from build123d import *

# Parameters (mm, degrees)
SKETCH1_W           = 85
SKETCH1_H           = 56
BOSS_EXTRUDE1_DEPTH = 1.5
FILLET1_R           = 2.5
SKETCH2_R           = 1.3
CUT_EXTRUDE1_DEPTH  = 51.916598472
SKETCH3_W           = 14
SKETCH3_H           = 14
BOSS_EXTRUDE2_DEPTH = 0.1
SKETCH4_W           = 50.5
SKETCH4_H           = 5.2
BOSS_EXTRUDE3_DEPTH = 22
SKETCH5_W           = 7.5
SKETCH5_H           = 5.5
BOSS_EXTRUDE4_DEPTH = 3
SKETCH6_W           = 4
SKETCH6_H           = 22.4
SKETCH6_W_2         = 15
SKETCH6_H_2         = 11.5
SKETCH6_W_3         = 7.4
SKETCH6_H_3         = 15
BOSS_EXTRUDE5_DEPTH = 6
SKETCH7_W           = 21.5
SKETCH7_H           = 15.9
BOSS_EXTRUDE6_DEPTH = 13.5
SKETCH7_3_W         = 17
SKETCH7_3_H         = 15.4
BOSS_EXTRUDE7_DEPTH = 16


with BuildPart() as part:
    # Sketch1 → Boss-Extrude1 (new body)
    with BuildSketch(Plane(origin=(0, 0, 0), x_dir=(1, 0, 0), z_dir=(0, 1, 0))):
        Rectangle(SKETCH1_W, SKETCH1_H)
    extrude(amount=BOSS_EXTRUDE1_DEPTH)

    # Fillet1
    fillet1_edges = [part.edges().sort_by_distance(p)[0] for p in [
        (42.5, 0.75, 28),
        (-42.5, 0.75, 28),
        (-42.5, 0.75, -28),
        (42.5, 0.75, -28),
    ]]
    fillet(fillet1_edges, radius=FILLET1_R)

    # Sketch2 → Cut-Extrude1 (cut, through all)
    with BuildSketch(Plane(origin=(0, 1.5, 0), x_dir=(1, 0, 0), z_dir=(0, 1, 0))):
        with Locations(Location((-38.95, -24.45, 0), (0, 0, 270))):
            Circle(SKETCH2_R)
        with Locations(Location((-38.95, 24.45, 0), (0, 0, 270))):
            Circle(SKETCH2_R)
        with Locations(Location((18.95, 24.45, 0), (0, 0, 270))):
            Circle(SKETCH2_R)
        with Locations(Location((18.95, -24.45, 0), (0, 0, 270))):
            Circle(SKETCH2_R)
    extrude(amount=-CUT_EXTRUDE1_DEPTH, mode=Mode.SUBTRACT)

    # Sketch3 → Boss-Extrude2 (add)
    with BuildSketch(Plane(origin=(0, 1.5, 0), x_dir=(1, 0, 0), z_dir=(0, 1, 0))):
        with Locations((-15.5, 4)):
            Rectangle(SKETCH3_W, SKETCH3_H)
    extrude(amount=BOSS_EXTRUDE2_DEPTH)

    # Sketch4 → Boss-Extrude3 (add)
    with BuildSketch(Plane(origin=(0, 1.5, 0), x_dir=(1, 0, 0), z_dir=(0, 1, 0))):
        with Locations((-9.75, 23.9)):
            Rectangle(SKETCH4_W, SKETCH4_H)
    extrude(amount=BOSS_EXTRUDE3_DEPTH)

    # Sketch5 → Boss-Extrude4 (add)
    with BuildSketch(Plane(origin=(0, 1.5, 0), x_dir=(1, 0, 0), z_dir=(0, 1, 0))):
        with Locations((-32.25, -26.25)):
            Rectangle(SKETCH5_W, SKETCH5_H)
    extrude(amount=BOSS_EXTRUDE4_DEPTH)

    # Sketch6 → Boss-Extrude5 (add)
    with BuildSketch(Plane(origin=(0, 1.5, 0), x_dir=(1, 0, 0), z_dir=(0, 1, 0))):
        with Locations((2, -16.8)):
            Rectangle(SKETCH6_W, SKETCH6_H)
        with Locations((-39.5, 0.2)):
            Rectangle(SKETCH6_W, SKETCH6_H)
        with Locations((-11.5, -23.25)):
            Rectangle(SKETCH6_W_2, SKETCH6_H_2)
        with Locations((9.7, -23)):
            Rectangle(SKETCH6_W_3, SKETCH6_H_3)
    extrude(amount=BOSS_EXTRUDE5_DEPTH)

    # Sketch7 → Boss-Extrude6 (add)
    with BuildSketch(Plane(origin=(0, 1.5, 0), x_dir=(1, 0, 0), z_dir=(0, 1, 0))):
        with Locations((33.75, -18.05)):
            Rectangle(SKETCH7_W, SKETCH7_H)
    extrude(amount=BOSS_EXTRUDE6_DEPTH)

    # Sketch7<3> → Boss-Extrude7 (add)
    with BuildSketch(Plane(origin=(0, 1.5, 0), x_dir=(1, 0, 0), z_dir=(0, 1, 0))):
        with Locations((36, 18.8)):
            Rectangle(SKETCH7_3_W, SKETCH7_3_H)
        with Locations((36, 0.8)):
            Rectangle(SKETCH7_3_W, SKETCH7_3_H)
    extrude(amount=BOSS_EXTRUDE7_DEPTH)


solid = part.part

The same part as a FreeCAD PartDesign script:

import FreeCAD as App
import Part
import Sketcher
from FreeCAD import Vector
Q = App.Units.Quantity


def edges_at(feature, points):
    """Names of the edges that pass closest to the given points."""
    edges = feature.Shape.Edges
    near = lambda p: min(range(len(edges)), key=lambda i: edges[i].distToShape(Part.Vertex(*p))[0])
    return sorted({f"Edge{near(p) + 1}" for p in points})

doc = App.newDocument("Part")
params = doc.addObject("Spreadsheet::Sheet", "Params")
for row, (alias, value) in enumerate([
    ("sketch1_width", "85 mm"),
    ("sketch1_height", "56 mm"),
    ("pad1_length", "1.5 mm"),
    ("fillet_radius", "2.5 mm"),
    ("sketch2_diameter", "2.6 mm"),
    ("sketch3_width", "14 mm"),
    ("pad2_length", "0.1 mm"),
    ("sketch4_width", "50.5 mm"),
    ("sketch4_height", "5.2 mm"),
    ("pad3_length", "22 mm"),
    ("sketch5_width", "7.5 mm"),
    ("sketch5_height", "5.5 mm"),
    ("pad4_length", "3 mm"),
    ("sketch6_width", "4 mm"),
    ("sketch6_width2", "15 mm"),
    ("sketch6_width3", "7.4 mm"),
    ("sketch6_height", "22.4 mm"),
    ("sketch6_height2", "11.5 mm"),
    ("pad5_length", "6 mm"),
    ("sketch7_width", "21.5 mm"),
    ("sketch7_height", "15.9 mm"),
    ("pad6_length", "13.5 mm"),
    ("sketch8_width", "17 mm"),
    ("sketch8_height", "15.4 mm"),
    ("pad7_length", "16 mm"),
], start=1):
    params.set(f"A{row}", alias)
    params.set(f"B{row}", "=" + value)
    params.setAlias(f"B{row}", alias)

body = doc.addObject("PartDesign::Body", "Body")

# Sketch on XZ plane
sketch1 = doc.addObject("Sketcher::SketchObject", "Sketch")
body.addObject(sketch1)
sketch1.AttachmentSupport = (doc.XZ_Plane, [""])
sketch1.MapMode = "FlatFace"
sketch1.addGeometry([
    Part.LineSegment(Vector(-42.5, -28, 0), Vector(-42.5, 28, 0)),
    Part.LineSegment(Vector(-42.5, 28, 0), Vector(42.5, 28, 0)),
    Part.LineSegment(Vector(42.5, 28, 0), Vector(42.5, -28, 0)),
    Part.LineSegment(Vector(42.5, -28, 0), Vector(-42.5, -28, 0)),
], False)
sketch1.addConstraint([
    Sketcher.Constraint("Coincident", 0, 2, 1, 1),
    Sketcher.Constraint("Coincident", 1, 2, 2, 1),
    Sketcher.Constraint("Coincident", 2, 2, 3, 1),
    Sketcher.Constraint("Coincident", 3, 2, 0, 1),
    Sketcher.Constraint("Vertical", 0),
    Sketcher.Constraint("Horizontal", 1),
    Sketcher.Constraint("Vertical", 2),
    Sketcher.Constraint("Horizontal", 3),
    Sketcher.Constraint("Symmetric", 0, 2, 2, 2, -1, 1),
    Sketcher.Constraint("DistanceX", 1, 1, 1, 2, Q("85 mm")),
    Sketcher.Constraint("DistanceY", 0, 1, 0, 2, Q("56 mm")),
])
sketch1.setExpression("Constraints[9]", "Params.sketch1_width")
sketch1.setExpression("Constraints[10]", "Params.sketch1_height")
pad1 = doc.addObject("PartDesign::Pad", "Pad")
body.addObject(pad1)
pad1.Profile = sketch1
pad1.setExpression("Length", "Params.pad1_length")
pad1.Reversed = True
doc.recompute()

fillet = doc.addObject("PartDesign::Fillet", "Fillet")
body.addObject(fillet)
fillet.Base = (pad1, edges_at(pad1, [
    (42.5, 0.75, 28),
    (-42.5, 0.75, 28),
    (-42.5, 0.75, -28),
    (42.5, 0.75, -28),
]))
fillet.setExpression("Radius", "Params.fillet_radius")

# Sketch on XZ plane
sketch2 = doc.addObject("Sketcher::SketchObject", "Sketch001")
body.addObject(sketch2)
sketch2.AttachmentSupport = (doc.XZ_Plane, [""])
sketch2.MapMode = "FlatFace"
sketch2.AttachmentOffset = App.Placement(Vector(0, 0, -1.5), App.Rotation())
sketch2.addGeometry([
    Part.Circle(Vector(-38.95, 24.45, 0), Vector(0, 0, 1), 1.3),
    Part.Circle(Vector(-38.95, -24.45, 0), Vector(0, 0, 1), 1.3),
    Part.Circle(Vector(18.95, -24.45, 0), Vector(0, 0, 1), 1.3),
    Part.Circle(Vector(18.95, 24.45, 0), Vector(0, 0, 1), 1.3),
], False)
sketch2.addConstraint([
    Sketcher.Constraint("Equal", 0, 1),
    Sketcher.Constraint("Equal", 1, 2),
    Sketcher.Constraint("Equal", 2, 3),
    Sketcher.Constraint("Symmetric", 0, 3, 1, 3, -1),
    Sketcher.Constraint("Symmetric", 2, 3, 3, 3, -1),
    Sketcher.Constraint("Horizontal", 1, 3, 2, 3),
    Sketcher.Constraint("Diameter", 0, Q("2.6 mm")),
    Sketcher.Constraint("DistanceY", 1, 3, 0, 3, Q("48.9 mm")),
    Sketcher.Constraint("DistanceX", 1, 3, 2, 3, Q("57.9 mm")),
    Sketcher.Constraint("DistanceX", 0, 3, -1, 1, Q("38.95 mm")),
])
sketch2.setExpression("Constraints[6]", "Params.sketch2_diameter")
pocket1 = doc.addObject("PartDesign::Pocket", "Pocket")
body.addObject(pocket1)
pocket1.Profile = sketch2
pocket1.Type = "ThroughAll"
pocket1.Reversed = True

# Sketch on XZ plane
sketch3 = doc.addObject("Sketcher::SketchObject", "Sketch002")
body.addObject(sketch3)
sketch3.AttachmentSupport = (doc.XZ_Plane, [""])
sketch3.MapMode = "FlatFace"
sketch3.AttachmentOffset = App.Placement(Vector(0, 0, -1.5), App.Rotation())
sketch3.addGeometry([
    Part.LineSegment(Vector(-22.5, -11, 0), Vector(-22.5, 3, 0)),
    Part.LineSegment(Vector(-22.5, 3, 0), Vector(-8.5, 3, 0)),
    Part.LineSegment(Vector(-8.5, 3, 0), Vector(-8.5, -11, 0)),
    Part.LineSegment(Vector(-8.5, -11, 0), Vector(-22.5, -11, 0)),
], False)
sketch3.addConstraint([
    Sketcher.Constraint("Coincident", 0, 2, 1, 1),
    Sketcher.Constraint("Coincident", 1, 2, 2, 1),
    Sketcher.Constraint("Coincident", 2, 2, 3, 1),
    Sketcher.Constraint("Coincident", 3, 2, 0, 1),
    Sketcher.Constraint("Vertical", 0),
    Sketcher.Constraint("Horizontal", 1),
    Sketcher.Constraint("Vertical", 2),
    Sketcher.Constraint("Horizontal", 3),
    Sketcher.Constraint("Equal", 3, 0),
    Sketcher.Constraint("DistanceX", 1, 1, 1, 2, Q("14 mm")),
    Sketcher.Constraint("DistanceY", -1, 1, 0, 2, Q("3 mm")),
    Sketcher.Constraint("DistanceX", 0, 2, -1, 1, Q("22.5 mm")),
])
sketch3.setExpression("Constraints[9]", "Params.sketch3_width")
pad2 = doc.addObject("PartDesign::Pad", "Pad001")
body.addObject(pad2)
pad2.Profile = sketch3
pad2.setExpression("Length", "Params.pad2_length")
pad2.Reversed = True

# Sketch on XZ plane
sketch4 = doc.addObject("Sketcher::SketchObject", "Sketch003")
body.addObject(sketch4)
sketch4.AttachmentSupport = (doc.XZ_Plane, [""])
sketch4.MapMode = "FlatFace"
sketch4.AttachmentOffset = App.Placement(Vector(0, 0, -1.5), App.Rotation())
sketch4.addGeometry([
    Part.LineSegment(Vector(-35, -26.5, 0), Vector(-35, -21.3, 0)),
    Part.LineSegment(Vector(-35, -21.3, 0), Vector(15.5, -21.3, 0)),
    Part.LineSegment(Vector(15.5, -21.3, 0), Vector(15.5, -26.5, 0)),
    Part.LineSegment(Vector(15.5, -26.5, 0), Vector(-35, -26.5, 0)),
], False)
sketch4.addConstraint([
    Sketcher.Constraint("Coincident", 0, 2, 1, 1),
    Sketcher.Constraint("Coincident", 1, 2, 2, 1),
    Sketcher.Constraint("Coincident", 2, 2, 3, 1),
    Sketcher.Constraint("Coincident", 3, 2, 0, 1),
    Sketcher.Constraint("Vertical", 0),
    Sketcher.Constraint("Horizontal", 1),
    Sketcher.Constraint("Vertical", 2),
    Sketcher.Constraint("Horizontal", 3),
    Sketcher.Constraint("DistanceX", 1, 1, 1, 2, Q("50.5 mm")),
    Sketcher.Constraint("DistanceY", 0, 1, 0, 2, Q("5.2 mm")),
    Sketcher.Constraint("DistanceX", 0, 2, -1, 1, Q("35 mm")),
    Sketcher.Constraint("DistanceY", 0, 2, -1, 1, Q("21.3 mm")),
])
sketch4.setExpression("Constraints[8]", "Params.sketch4_width")
sketch4.setExpression("Constraints[9]", "Params.sketch4_height")
pad3 = doc.addObject("PartDesign::Pad", "Pad002")
body.addObject(pad3)
pad3.Profile = sketch4
pad3.setExpression("Length", "Params.pad3_length")
pad3.Reversed = True

# Sketch on XZ plane
sketch5 = doc.addObject("Sketcher::SketchObject", "Sketch004")
body.addObject(sketch5)
sketch5.AttachmentSupport = (doc.XZ_Plane, [""])
sketch5.MapMode = "FlatFace"
sketch5.AttachmentOffset = App.Placement(Vector(0, 0, -1.5), App.Rotation())
sketch5.addGeometry([
    Part.LineSegment(Vector(-36, 23.5, 0), Vector(-36, 29, 0)),
    Part.LineSegment(Vector(-36, 29, 0), Vector(-28.5, 29, 0)),
    Part.LineSegment(Vector(-28.5, 29, 0), Vector(-28.5, 23.5, 0)),
    Part.LineSegment(Vector(-28.5, 23.5, 0), Vector(-36, 23.5, 0)),
], False)
sketch5.addConstraint([
    Sketcher.Constraint("Coincident", 0, 2, 1, 1),
    Sketcher.Constraint("Coincident", 1, 2, 2, 1),
    Sketcher.Constraint("Coincident", 2, 2, 3, 1),
    Sketcher.Constraint("Coincident", 3, 2, 0, 1),
    Sketcher.Constraint("Vertical", 0),
    Sketcher.Constraint("Horizontal", 1),
    Sketcher.Constraint("Vertical", 2),
    Sketcher.Constraint("Horizontal", 3),
    Sketcher.Constraint("DistanceX", 1, 1, 1, 2, Q("7.5 mm")),
    Sketcher.Constraint("DistanceY", 0, 1, 0, 2, Q("5.5 mm")),
    Sketcher.Constraint("DistanceX", 0, 2, -1, 1, Q("36 mm")),
    Sketcher.Constraint("DistanceY", -1, 1, 0, 2, Q("29 mm")),
])
sketch5.setExpression("Constraints[8]", "Params.sketch5_width")
sketch5.setExpression("Constraints[9]", "Params.sketch5_height")
pad4 = doc.addObject("PartDesign::Pad", "Pad003")
body.addObject(pad4)
pad4.Profile = sketch5
pad4.setExpression("Length", "Params.pad4_length")
pad4.Reversed = True

# Sketch on XZ plane
sketch6 = doc.addObject("Sketcher::SketchObject", "Sketch005")
body.addObject(sketch6)
sketch6.AttachmentSupport = (doc.XZ_Plane, [""])
sketch6.MapMode = "FlatFace"
sketch6.AttachmentOffset = App.Placement(Vector(0, 0, -1.5), App.Rotation())
sketch6.addGeometry([
    Part.LineSegment(Vector(0, 5.6, 0), Vector(0, 28, 0)),  # 0
    Part.LineSegment(Vector(0, 28, 0), Vector(4, 28, 0)),  # 1
    Part.LineSegment(Vector(4, 28, 0), Vector(4, 5.6, 0)),  # 2
    Part.LineSegment(Vector(4, 5.6, 0), Vector(0, 5.6, 0)),  # 3
    Part.LineSegment(Vector(-41.5, -11.4, 0), Vector(-41.5, 11, 0)),  # 4
    Part.LineSegment(Vector(-41.5, 11, 0), Vector(-37.5, 11, 0)),  # 5
    Part.LineSegment(Vector(-37.5, 11, 0), Vector(-37.5, -11.4, 0)),  # 6
    Part.LineSegment(Vector(-37.5, -11.4, 0), Vector(-41.5, -11.4, 0)),  # 7
    Part.LineSegment(Vector(-19, 17.5, 0), Vector(-19, 29, 0)),  # 8
    Part.LineSegment(Vector(-19, 29, 0), Vector(-4, 29, 0)),  # 9
    Part.LineSegment(Vector(-4, 29, 0), Vector(-4, 17.5, 0)),  # 10
    Part.LineSegment(Vector(-4, 17.5, 0), Vector(-19, 17.5, 0)),  # 11
    Part.LineSegment(Vector(6, 15.5, 0), Vector(6, 30.5, 0)),  # 12
    Part.LineSegment(Vector(6, 30.5, 0), Vector(13.4, 30.5, 0)),  # 13
    Part.LineSegment(Vector(13.4, 30.5, 0), Vector(13.4, 15.5, 0)),  # 14
    Part.LineSegment(Vector(13.4, 15.5, 0), Vector(6, 15.5, 0)),  # 15
], False)
sketch6.addConstraint([
    Sketcher.Constraint("Coincident", 0, 2, 1, 1),
    Sketcher.Constraint("Coincident", 1, 2, 2, 1),
    Sketcher.Constraint("Coincident", 2, 2, 3, 1),
    Sketcher.Constraint("Coincident", 3, 2, 0, 1),
    Sketcher.Constraint("Coincident", 4, 2, 5, 1),
    Sketcher.Constraint("Coincident", 5, 2, 6, 1),
    Sketcher.Constraint("Coincident", 6, 2, 7, 1),
    Sketcher.Constraint("Coincident", 7, 2, 4, 1),
    Sketcher.Constraint("Coincident", 8, 2, 9, 1),
    Sketcher.Constraint("Coincident", 9, 2, 10, 1),
    Sketcher.Constraint("Coincident", 10, 2, 11, 1),
    Sketcher.Constraint("Coincident", 11, 2, 8, 1),
    Sketcher.Constraint("Coincident", 12, 2, 13, 1),
    Sketcher.Constraint("Coincident", 13, 2, 14, 1),
    Sketcher.Constraint("Coincident", 14, 2, 15, 1),
    Sketcher.Constraint("Coincident", 15, 2, 12, 1),
    Sketcher.Constraint("Vertical", 0),
    Sketcher.Constraint("Horizontal", 1),
    Sketcher.Constraint("Vertical", 2),
    Sketcher.Constraint("Horizontal", 3),
    Sketcher.Constraint("Vertical", 4),
    Sketcher.Constraint("Horizontal", 5),
    Sketcher.Constraint("Vertical", 6),
    Sketcher.Constraint("Horizontal", 7),
    Sketcher.Constraint("Vertical", 8),
    Sketcher.Constraint("Horizontal", 9),
    Sketcher.Constraint("Vertical", 10),
    Sketcher.Constraint("Horizontal", 11),
    Sketcher.Constraint("Vertical", 12),
    Sketcher.Constraint("Horizontal", 13),
    Sketcher.Constraint("Vertical", 14),
    Sketcher.Constraint("Horizontal", 15),
    Sketcher.Constraint("PointOnObject", 0, 2, -2),
    Sketcher.Constraint("Equal", 3, 5),
    Sketcher.Constraint("Equal", 2, 4),
    Sketcher.Constraint("Equal", 11, 12),
    Sketcher.Constraint("DistanceX", 1, 1, 1, 2, Q("4 mm")),
    Sketcher.Constraint("DistanceX", 9, 1, 9, 2, Q("15 mm")),
    Sketcher.Constraint("DistanceX", 13, 1, 13, 2, Q("7.4 mm")),
    Sketcher.Constraint("DistanceY", 0, 1, 0, 2, Q("22.4 mm")),
    Sketcher.Constraint("DistanceY", 8, 1, 8, 2, Q("11.5 mm")),
    Sketcher.Constraint("DistanceY", -1, 1, 0, 2, Q("28 mm")),
    Sketcher.Constraint("DistanceY", -1, 1, 4, 2, Q("11 mm")),
    Sketcher.Constraint("DistanceX", 8, 2, -1, 1, Q("19 mm")),
    Sketcher.Constraint("DistanceY", -1, 1, 8, 2, Q("29 mm")),
    Sketcher.Constraint("DistanceX", -1, 1, 12, 2, Q("6 mm")),
    Sketcher.Constraint("DistanceY", 10, 2, 12, 2, Q("13 mm")),
    Sketcher.Constraint("DistanceX", 4, 2, -1, 1, Q("41.5 mm")),
])
sketch6.setExpression("Constraints[36]", "Params.sketch6_width")
sketch6.setExpression("Constraints[37]", "Params.sketch6_width2")
sketch6.setExpression("Constraints[38]", "Params.sketch6_width3")
sketch6.setExpression("Constraints[39]", "Params.sketch6_height")
sketch6.setExpression("Constraints[40]", "Params.sketch6_height2")
pad5 = doc.addObject("PartDesign::Pad", "Pad004")
body.addObject(pad5)
pad5.Profile = sketch6
pad5.setExpression("Length", "Params.pad5_length")
pad5.Reversed = True

# Sketch on XZ plane
sketch7 = doc.addObject("Sketcher::SketchObject", "Sketch006")
body.addObject(sketch7)
sketch7.AttachmentSupport = (doc.XZ_Plane, [""])
sketch7.MapMode = "FlatFace"
sketch7.AttachmentOffset = App.Placement(Vector(0, 0, -1.5), App.Rotation())
sketch7.addGeometry([
    Part.LineSegment(Vector(23, 10.1, 0), Vector(23, 26, 0)),
    Part.LineSegment(Vector(23, 26, 0), Vector(44.5, 26, 0)),
    Part.LineSegment(Vector(44.5, 26, 0), Vector(44.5, 10.1, 0)),
    Part.LineSegment(Vector(44.5, 10.1, 0), Vector(23, 10.1, 0)),
], False)
sketch7.addConstraint([
    Sketcher.Constraint("Coincident", 0, 2, 1, 1),
    Sketcher.Constraint("Coincident", 1, 2, 2, 1),
    Sketcher.Constraint("Coincident", 2, 2, 3, 1),
    Sketcher.Constraint("Coincident", 3, 2, 0, 1),
    Sketcher.Constraint("Vertical", 0),
    Sketcher.Constraint("Horizontal", 1),
    Sketcher.Constraint("Vertical", 2),
    Sketcher.Constraint("Horizontal", 3),
    Sketcher.Constraint("DistanceX", 1, 1, 1, 2, Q("21.5 mm")),
    Sketcher.Constraint("DistanceY", 0, 1, 0, 2, Q("15.9 mm")),
    Sketcher.Constraint("DistanceX", -1, 1, 0, 2, Q("23 mm")),
    Sketcher.Constraint("DistanceY", -1, 1, 0, 2, Q("26 mm")),
])
sketch7.setExpression("Constraints[8]", "Params.sketch7_width")
sketch7.setExpression("Constraints[9]", "Params.sketch7_height")
pad6 = doc.addObject("PartDesign::Pad", "Pad005")
body.addObject(pad6)
pad6.Profile = sketch7
pad6.setExpression("Length", "Params.pad6_length")
pad6.Reversed = True

# Sketch on XZ plane
sketch8 = doc.addObject("Sketcher::SketchObject", "Sketch007")
body.addObject(sketch8)
sketch8.AttachmentSupport = (doc.XZ_Plane, [""])
sketch8.MapMode = "FlatFace"
sketch8.AttachmentOffset = App.Placement(Vector(0, 0, -1.5), App.Rotation())
sketch8.addGeometry([
    Part.LineSegment(Vector(27.5, -26.5, 0), Vector(27.5, -11.1, 0)),  # 0
    Part.LineSegment(Vector(27.5, -11.1, 0), Vector(44.5, -11.1, 0)),  # 1
    Part.LineSegment(Vector(44.5, -11.1, 0), Vector(44.5, -26.5, 0)),  # 2
    Part.LineSegment(Vector(44.5, -26.5, 0), Vector(27.5, -26.5, 0)),  # 3
    Part.LineSegment(Vector(27.5, -8.5, 0), Vector(27.5, 6.9, 0)),  # 4
    Part.LineSegment(Vector(27.5, 6.9, 0), Vector(44.5, 6.9, 0)),  # 5
    Part.LineSegment(Vector(44.5, 6.9, 0), Vector(44.5, -8.5, 0)),  # 6
    Part.LineSegment(Vector(44.5, -8.5, 0), Vector(27.5, -8.5, 0)),  # 7
], False)
sketch8.addConstraint([
    Sketcher.Constraint("Coincident", 0, 2, 1, 1),
    Sketcher.Constraint("Coincident", 1, 2, 2, 1),
    Sketcher.Constraint("Coincident", 2, 2, 3, 1),
    Sketcher.Constraint("Coincident", 3, 2, 0, 1),
    Sketcher.Constraint("Coincident", 4, 2, 5, 1),
    Sketcher.Constraint("Coincident", 5, 2, 6, 1),
    Sketcher.Constraint("Coincident", 6, 2, 7, 1),
    Sketcher.Constraint("Coincident", 7, 2, 4, 1),
    Sketcher.Constraint("Vertical", 0),
    Sketcher.Constraint("Horizontal", 1),
    Sketcher.Constraint("Vertical", 2),
    Sketcher.Constraint("Horizontal", 3),
    Sketcher.Constraint("Vertical", 4),
    Sketcher.Constraint("Horizontal", 5),
    Sketcher.Constraint("Vertical", 6),
    Sketcher.Constraint("Horizontal", 7),
    Sketcher.Constraint("Vertical", 3, 2, 4, 2),
    Sketcher.Constraint("Vertical", 2, 2, 5, 2),
    Sketcher.Constraint("Equal", 2, 4),
    Sketcher.Constraint("DistanceX", 1, 1, 1, 2, Q("17 mm")),
    Sketcher.Constraint("DistanceY", 0, 1, 0, 2, Q("15.4 mm")),
    Sketcher.Constraint("DistanceY", 0, 2, 4, 2, Q("18 mm")),
    Sketcher.Constraint("DistanceX", -1, 1, 0, 2, Q("27.5 mm")),
    Sketcher.Constraint("DistanceY", 0, 2, -1, 1, Q("11.1 mm")),
])
sketch8.setExpression("Constraints[19]", "Params.sketch8_width")
sketch8.setExpression("Constraints[20]", "Params.sketch8_height")
pad7 = doc.addObject("PartDesign::Pad", "Pad006")
body.addObject(pad7)
pad7.Profile = sketch8
pad7.setExpression("Length", "Params.pad7_length")
pad7.Reversed = True

doc.recompute()
